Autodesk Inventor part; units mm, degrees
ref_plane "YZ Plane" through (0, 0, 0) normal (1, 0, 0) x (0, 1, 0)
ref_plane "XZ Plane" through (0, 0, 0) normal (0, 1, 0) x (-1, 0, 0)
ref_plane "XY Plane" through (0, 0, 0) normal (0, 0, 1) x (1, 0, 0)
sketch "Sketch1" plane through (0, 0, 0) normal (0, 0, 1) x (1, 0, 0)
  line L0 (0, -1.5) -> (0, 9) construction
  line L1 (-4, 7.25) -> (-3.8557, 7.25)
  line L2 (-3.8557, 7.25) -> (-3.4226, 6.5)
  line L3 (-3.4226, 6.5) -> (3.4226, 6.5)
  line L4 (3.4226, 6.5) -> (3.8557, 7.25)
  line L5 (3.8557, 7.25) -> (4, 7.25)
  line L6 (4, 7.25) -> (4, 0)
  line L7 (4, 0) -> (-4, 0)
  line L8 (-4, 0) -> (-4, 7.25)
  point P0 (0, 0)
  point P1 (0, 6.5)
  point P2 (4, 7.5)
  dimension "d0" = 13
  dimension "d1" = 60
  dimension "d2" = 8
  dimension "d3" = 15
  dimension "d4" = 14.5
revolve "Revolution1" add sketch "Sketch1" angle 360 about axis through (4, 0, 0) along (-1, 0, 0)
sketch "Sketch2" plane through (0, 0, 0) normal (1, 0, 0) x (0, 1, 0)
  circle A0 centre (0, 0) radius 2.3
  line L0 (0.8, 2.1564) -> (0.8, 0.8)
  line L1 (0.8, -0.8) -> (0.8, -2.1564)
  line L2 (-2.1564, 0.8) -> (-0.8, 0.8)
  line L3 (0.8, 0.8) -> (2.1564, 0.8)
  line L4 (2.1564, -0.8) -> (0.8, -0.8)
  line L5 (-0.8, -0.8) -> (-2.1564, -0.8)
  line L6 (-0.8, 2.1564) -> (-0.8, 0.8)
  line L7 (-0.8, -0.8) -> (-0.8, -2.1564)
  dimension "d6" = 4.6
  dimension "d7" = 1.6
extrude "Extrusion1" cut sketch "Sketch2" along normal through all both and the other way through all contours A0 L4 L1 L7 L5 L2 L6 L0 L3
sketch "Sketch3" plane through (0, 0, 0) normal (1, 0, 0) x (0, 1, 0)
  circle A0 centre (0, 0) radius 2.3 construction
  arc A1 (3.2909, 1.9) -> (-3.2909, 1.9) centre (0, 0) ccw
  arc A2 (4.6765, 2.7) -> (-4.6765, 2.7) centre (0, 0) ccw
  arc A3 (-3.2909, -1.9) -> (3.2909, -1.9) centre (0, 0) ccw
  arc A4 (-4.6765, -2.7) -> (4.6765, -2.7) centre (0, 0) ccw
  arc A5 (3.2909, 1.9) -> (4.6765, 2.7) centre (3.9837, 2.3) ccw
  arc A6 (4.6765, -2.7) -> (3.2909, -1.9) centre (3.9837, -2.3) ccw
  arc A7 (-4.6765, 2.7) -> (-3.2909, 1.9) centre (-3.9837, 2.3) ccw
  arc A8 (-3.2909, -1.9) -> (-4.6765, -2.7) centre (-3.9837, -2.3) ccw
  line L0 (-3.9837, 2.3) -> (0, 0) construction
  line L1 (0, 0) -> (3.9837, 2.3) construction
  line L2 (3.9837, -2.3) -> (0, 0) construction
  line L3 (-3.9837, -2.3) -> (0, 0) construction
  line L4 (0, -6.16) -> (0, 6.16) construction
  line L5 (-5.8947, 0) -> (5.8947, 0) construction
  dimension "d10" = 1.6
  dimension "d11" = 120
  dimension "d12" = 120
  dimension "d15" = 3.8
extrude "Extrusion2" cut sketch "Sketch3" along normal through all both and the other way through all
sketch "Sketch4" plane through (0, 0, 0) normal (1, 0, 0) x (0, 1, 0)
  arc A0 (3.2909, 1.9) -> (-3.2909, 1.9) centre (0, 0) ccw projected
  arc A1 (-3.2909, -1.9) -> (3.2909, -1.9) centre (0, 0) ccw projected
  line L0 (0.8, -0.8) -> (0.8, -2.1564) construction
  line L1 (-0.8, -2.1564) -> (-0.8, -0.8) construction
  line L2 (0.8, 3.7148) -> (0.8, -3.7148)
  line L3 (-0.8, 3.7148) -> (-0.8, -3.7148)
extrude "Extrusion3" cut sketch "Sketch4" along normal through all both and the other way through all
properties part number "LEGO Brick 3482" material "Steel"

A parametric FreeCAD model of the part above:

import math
import FreeCAD as App
import Part
import Sketcher

V = App.Vector
Q = App.Units.Quantity

doc = App.newDocument("Part")
body = doc.addObject("PartDesign::Body", "Body")

sketch1 = doc.addObject("Sketcher::SketchObject", "Sketch")
body.addObject(sketch1)
sketch1.AttachmentSupport = (doc.XY_Plane, [""])
sketch1.MapMode = "FlatFace"
sketch1.addGeometry([
    Part.LineSegment(V(-3.86, 7.25, 0), V(-4, 7.25, 0)),
    Part.LineSegment(V(-4, 7.25, 0), V(-4, 0, 0)),
    Part.LineSegment(V(-4, 0, 0), V(4, 0, 0)),
    Part.LineSegment(V(4, 0, 0), V(4, 7.25, 0)),
    Part.LineSegment(V(4, 7.25, 0), V(3.86, 7.25, 0)),
    Part.LineSegment(V(3.86, 7.25, 0), V(3.42, 6.5, 0)),
    Part.LineSegment(V(3.42, 6.5, 0), V(-3.42, 6.5, 0)),
    Part.LineSegment(V(-3.42, 6.5, 0), V(-3.86, 7.25, 0)),
], False)
sketch1.addConstraint([
    Sketcher.Constraint("Coincident", 0, 2, 1, 1),
    Sketcher.Constraint("Coincident", 1, 2, 2, 1),
    Sketcher.Constraint("Coincident", 2, 2, 3, 1),
    Sketcher.Constraint("Coincident", 3, 2, 4, 1),
    Sketcher.Constraint("Coincident", 4, 2, 5, 1),
    Sketcher.Constraint("Coincident", 5, 2, 6, 1),
    Sketcher.Constraint("Coincident", 6, 2, 7, 1),
    Sketcher.Constraint("Coincident", 7, 2, 0, 1),
    Sketcher.Constraint("Horizontal", 0),
    Sketcher.Constraint("Vertical", 1),
    Sketcher.Constraint("Horizontal", 2),
    Sketcher.Constraint("Vertical", 3),
    Sketcher.Constraint("Horizontal", 4),
    Sketcher.Constraint("Horizontal", 6),
    Sketcher.Constraint("Symmetric", 1, 2, 2, 2, -1, 1),
    Sketcher.Constraint("Symmetric", 4, 2, 7, 2, -2),
    Sketcher.Constraint("Equal", 5, 7),
    Sketcher.Constraint("DistanceX", 2, 1, 2, 2, Q("8 mm")),
    Sketcher.Constraint("DistanceY", 1, 2, 1, 1, Q("7.25 mm")),
    Sketcher.Constraint("DistanceY", -1, 1, 5, 2, Q("6.5 mm")),
    Sketcher.Constraint("Distance", 5, Q("0.866 mm")),
    Sketcher.Constraint("DistanceX", 0, 2, 0, 1, Q("0.1443 mm")),
])
revolution = doc.addObject("PartDesign::Revolution", "Revolution")
body.addObject(revolution)
revolution.Profile = sketch1
revolution.ReferenceAxis = (sketch1, ["H_Axis"])
revolution.Angle = 360

sketch2 = doc.addObject("Sketcher::SketchObject", "Sketch001")
body.addObject(sketch2)
sketch2.AttachmentSupport = (doc.YZ_Plane, [""])
sketch2.MapMode = "FlatFace"
sketch2.addGeometry([
    Part.ArcOfCircle(Part.Circle(V(0, 0, 0), V(0, 0, 1), 2.3), math.radians(-20), math.radians(20)),
    Part.LineSegment(V(2.2, 0.8, 0), V(0.8, 0.8, 0)),
    Part.LineSegment(V(0.8, 0.8, 0), V(0.8, 2.2, 0)),
    Part.ArcOfCircle(Part.Circle(V(0, 0, 0), V(0, 0, 1), 2.3), math.radians(70), math.radians(110)),
    Part.LineSegment(V(-0.8, 2.2, 0), V(-0.8, 0.8, 0)),
    Part.LineSegment(V(-0.8, 0.8, 0), V(-2.2, 0.8, 0)),
    Part.ArcOfCircle(Part.Circle(V(0, 0, 0), V(0, 0, 1), 2.3), math.radians(160), math.radians(200)),
    Part.LineSegment(V(-2.2, -0.8, 0), V(-0.8, -0.8, 0)),
    Part.LineSegment(V(-0.8, -0.8, 0), V(-0.8, -2.2, 0)),
    Part.ArcOfCircle(Part.Circle(V(0, 0, 0), V(0, 0, 1), 2.3), math.radians(-110), math.radians(-70)),
    Part.LineSegment(V(0.8, -2.2, 0), V(0.8, -0.8, 0)),
    Part.LineSegment(V(0.8, -0.8, 0), V(2.2, -0.8, 0)),
], False)
sketch2.addConstraint([
    Sketcher.Constraint("Coincident", 0, 2, 1, 1),
    Sketcher.Constraint("Coincident", 1, 2, 2, 1),
    Sketcher.Constraint("Coincident", 2, 2, 3, 1),
    Sketcher.Constraint("Coincident", 3, 2, 4, 1),
    Sketcher.Constraint("Coincident", 4, 2, 5, 1),
    Sketcher.Constraint("Coincident", 5, 2, 6, 1),
    Sketcher.Constraint("Coincident", 6, 2, 7, 1),
    Sketcher.Constraint("Coincident", 7, 2, 8, 1),
    Sketcher.Constraint("Coincident", 8, 2, 9, 1),
    Sketcher.Constraint("Coincident", 9, 2, 10, 1),
    Sketcher.Constraint("Coincident", 10, 2, 11, 1),
    Sketcher.Constraint("Coincident", 11, 2, 0, 1),
    Sketcher.Constraint("Horizontal", 1),
    Sketcher.Constraint("Vertical", 2),
    Sketcher.Constraint("Vertical", 4),
    Sketcher.Constraint("Horizontal", 5),
    Sketcher.Constraint("Horizontal", 7),
    Sketcher.Constraint("Vertical", 8),
    Sketcher.Constraint("Vertical", 10),
    Sketcher.Constraint("Horizontal", 11),
    Sketcher.Constraint("Coincident", 0, 3, -1, 1),
    Sketcher.Constraint("Coincident", 3, 3, -1, 1),
    Sketcher.Constraint("Coincident", 6, 3, -1, 1),
    Sketcher.Constraint("Coincident", 9, 3, -1, 1),
    Sketcher.Constraint("Equal", 0, 3),
    Sketcher.Constraint("Equal", 3, 6),
    Sketcher.Constraint("Equal", 6, 9),
    Sketcher.Constraint("Symmetric", 1, 2, 7, 2, -1, 1),
    Sketcher.Constraint("Symmetric", 4, 2, 10, 2, -1, 1),
    Sketcher.Constraint("Symmetric", 1, 2, 4, 2, -2),
    Sketcher.Constraint("Equal", 11, 2),
    Sketcher.Constraint("Radius", 0, Q("2.3 mm")),
    Sketcher.Constraint("DistanceX", 3, 2, 2, 2, Q("1.6 mm")),
])
pocket1 = doc.addObject("PartDesign::Pocket", "Pocket")
body.addObject(pocket1)
pocket1.Profile = sketch2
pocket1.Type = "ThroughAll"
pocket1.Midplane = True

sketch3 = doc.addObject("Sketcher::SketchObject", "Sketch002")
body.addObject(sketch3)
sketch3.AttachmentSupport = (doc.YZ_Plane, [""])
sketch3.MapMode = "FlatFace"
sketch3.addGeometry([
    Part.ArcOfCircle(Part.Circle(V(0, 0, 0), V(0, 0, 1), 3.8), math.radians(30), math.radians(150)),
    Part.ArcOfCircle(Part.Circle(V(4, 2.3, 0), V(0, 0, 1), 0.8), math.radians(-150), math.radians(30)),
    Part.ArcOfCircle(Part.Circle(V(0, 0, 0), V(0, 0, 1), 5.4), math.radians(30), math.radians(150)),
    Part.ArcOfCircle(Part.Circle(V(-4, 2.3, 0), V(0, 0, 1), 0.8), math.radians(150), math.radians(330)),
    Part.ArcOfCircle(Part.Circle(V(0, 0, 0), V(0, 0, 1), 3.8), math.radians(-150), math.radians(-30)),
    Part.ArcOfCircle(Part.Circle(V(-4, -2.3, 0), V(0, 0, 1), 0.8), math.radians(30), math.radians(210)),
    Part.ArcOfCircle(Part.Circle(V(0, 0, 0), V(0, 0, 1), 5.4), math.radians(-150), math.radians(-30)),
    Part.ArcOfCircle(Part.Circle(V(4, -2.3, 0), V(0, 0, 1), 0.8), math.radians(-30), math.radians(150)),
], False)
sketch3.addConstraint([
    Sketcher.Constraint("Tangent", 0, 1, 1, 1),
    Sketcher.Constraint("Tangent", 1, 2, 2, 1),
    Sketcher.Constraint("Tangent", 2, 2, 3, 1),
    Sketcher.Constraint("Tangent", 3, 2, 0, 2),
    Sketcher.Constraint("Tangent", 4, 1, 5, 1),
    Sketcher.Constraint("Tangent", 5, 2, 6, 1),
    Sketcher.Constraint("Tangent", 6, 2, 7, 1),
    Sketcher.Constraint("Tangent", 7, 2, 4, 2),
    Sketcher.Constraint("Coincident", 0, 3, -1, 1),
    Sketcher.Constraint("Coincident", 2, 3, -1, 1),
    Sketcher.Constraint("Coincident", 4, 3, -1, 1),
    Sketcher.Constraint("Coincident", 6, 3, -1, 1),
    Sketcher.Constraint("Equal", 0, 4),
    Sketcher.Constraint("Equal", 3, 5),
    Sketcher.Constraint("Horizontal", 1, 3, 3, 3),
    Sketcher.Constraint("Horizontal", 5, 3, 7, 3),
    Sketcher.Constraint("Vertical", 3, 3, 5, 3),
    Sketcher.Constraint("Radius", 0, Q("3.8 mm")),
    Sketcher.Constraint("Radius", 1, Q("0.8 mm")),
    Sketcher.Constraint("DistanceY", 4, 1, 3, 2, Q("3.8 mm")),
])
pocket2 = doc.addObject("PartDesign::Pocket", "Pocket001")
body.addObject(pocket2)
pocket2.Profile = sketch3
pocket2.Type = "ThroughAll"
pocket2.Midplane = True

sketch4 = doc.addObject("Sketcher::SketchObject", "Sketch003")
body.addObject(sketch4)
sketch4.AttachmentSupport = (doc.YZ_Plane, [""])
sketch4.MapMode = "FlatFace"
sketch4.addGeometry([
    Part.LineSegment(V(0.8, -3.7, 0), V(0.8, 3.7, 0)),
    Part.ArcOfCircle(Part.Circle(V(0, 0, 0), V(0, 0, 1), 3.8), math.radians(78), math.radians(102)),
    Part.LineSegment(V(-0.8, 3.7, 0), V(-0.8, -3.7, 0)),
    Part.ArcOfCircle(Part.Circle(V(0, 0, 0), V(0, 0, 1), 3.8), math.radians(-102), math.radians(-78)),
], False)
sketch4.addConstraint([
    Sketcher.Constraint("Coincident", 0, 2, 1, 1),
    Sketcher.Constraint("Coincident", 1, 2, 2, 1),
    Sketcher.Constraint("Coincident", 2, 2, 3, 1),
    Sketcher.Constraint("Coincident", 3, 2, 0, 1),
    Sketcher.Constraint("Vertical", 0),
    Sketcher.Constraint("Vertical", 2),
    Sketcher.Constraint("Coincident", 1, 3, -1, 1),
    Sketcher.Constraint("Coincident", 3, 3, -1, 1),
    Sketcher.Constraint("Equal", 1, 3),
    Sketcher.Constraint("Horizontal", 0, 2, 1, 2),
    Sketcher.Constraint("Radius", 1, Q("3.8 mm")),
    Sketcher.Constraint("DistanceX", -1, 1, 0, 2, Q("0.8 mm")),
])
pocket3 = doc.addObject("PartDesign::Pocket", "Pocket002")
body.addObject(pocket3)
pocket3.Profile = sketch4
pocket3.Type = "ThroughAll"
pocket3.Midplane = True

doc.recompute()
